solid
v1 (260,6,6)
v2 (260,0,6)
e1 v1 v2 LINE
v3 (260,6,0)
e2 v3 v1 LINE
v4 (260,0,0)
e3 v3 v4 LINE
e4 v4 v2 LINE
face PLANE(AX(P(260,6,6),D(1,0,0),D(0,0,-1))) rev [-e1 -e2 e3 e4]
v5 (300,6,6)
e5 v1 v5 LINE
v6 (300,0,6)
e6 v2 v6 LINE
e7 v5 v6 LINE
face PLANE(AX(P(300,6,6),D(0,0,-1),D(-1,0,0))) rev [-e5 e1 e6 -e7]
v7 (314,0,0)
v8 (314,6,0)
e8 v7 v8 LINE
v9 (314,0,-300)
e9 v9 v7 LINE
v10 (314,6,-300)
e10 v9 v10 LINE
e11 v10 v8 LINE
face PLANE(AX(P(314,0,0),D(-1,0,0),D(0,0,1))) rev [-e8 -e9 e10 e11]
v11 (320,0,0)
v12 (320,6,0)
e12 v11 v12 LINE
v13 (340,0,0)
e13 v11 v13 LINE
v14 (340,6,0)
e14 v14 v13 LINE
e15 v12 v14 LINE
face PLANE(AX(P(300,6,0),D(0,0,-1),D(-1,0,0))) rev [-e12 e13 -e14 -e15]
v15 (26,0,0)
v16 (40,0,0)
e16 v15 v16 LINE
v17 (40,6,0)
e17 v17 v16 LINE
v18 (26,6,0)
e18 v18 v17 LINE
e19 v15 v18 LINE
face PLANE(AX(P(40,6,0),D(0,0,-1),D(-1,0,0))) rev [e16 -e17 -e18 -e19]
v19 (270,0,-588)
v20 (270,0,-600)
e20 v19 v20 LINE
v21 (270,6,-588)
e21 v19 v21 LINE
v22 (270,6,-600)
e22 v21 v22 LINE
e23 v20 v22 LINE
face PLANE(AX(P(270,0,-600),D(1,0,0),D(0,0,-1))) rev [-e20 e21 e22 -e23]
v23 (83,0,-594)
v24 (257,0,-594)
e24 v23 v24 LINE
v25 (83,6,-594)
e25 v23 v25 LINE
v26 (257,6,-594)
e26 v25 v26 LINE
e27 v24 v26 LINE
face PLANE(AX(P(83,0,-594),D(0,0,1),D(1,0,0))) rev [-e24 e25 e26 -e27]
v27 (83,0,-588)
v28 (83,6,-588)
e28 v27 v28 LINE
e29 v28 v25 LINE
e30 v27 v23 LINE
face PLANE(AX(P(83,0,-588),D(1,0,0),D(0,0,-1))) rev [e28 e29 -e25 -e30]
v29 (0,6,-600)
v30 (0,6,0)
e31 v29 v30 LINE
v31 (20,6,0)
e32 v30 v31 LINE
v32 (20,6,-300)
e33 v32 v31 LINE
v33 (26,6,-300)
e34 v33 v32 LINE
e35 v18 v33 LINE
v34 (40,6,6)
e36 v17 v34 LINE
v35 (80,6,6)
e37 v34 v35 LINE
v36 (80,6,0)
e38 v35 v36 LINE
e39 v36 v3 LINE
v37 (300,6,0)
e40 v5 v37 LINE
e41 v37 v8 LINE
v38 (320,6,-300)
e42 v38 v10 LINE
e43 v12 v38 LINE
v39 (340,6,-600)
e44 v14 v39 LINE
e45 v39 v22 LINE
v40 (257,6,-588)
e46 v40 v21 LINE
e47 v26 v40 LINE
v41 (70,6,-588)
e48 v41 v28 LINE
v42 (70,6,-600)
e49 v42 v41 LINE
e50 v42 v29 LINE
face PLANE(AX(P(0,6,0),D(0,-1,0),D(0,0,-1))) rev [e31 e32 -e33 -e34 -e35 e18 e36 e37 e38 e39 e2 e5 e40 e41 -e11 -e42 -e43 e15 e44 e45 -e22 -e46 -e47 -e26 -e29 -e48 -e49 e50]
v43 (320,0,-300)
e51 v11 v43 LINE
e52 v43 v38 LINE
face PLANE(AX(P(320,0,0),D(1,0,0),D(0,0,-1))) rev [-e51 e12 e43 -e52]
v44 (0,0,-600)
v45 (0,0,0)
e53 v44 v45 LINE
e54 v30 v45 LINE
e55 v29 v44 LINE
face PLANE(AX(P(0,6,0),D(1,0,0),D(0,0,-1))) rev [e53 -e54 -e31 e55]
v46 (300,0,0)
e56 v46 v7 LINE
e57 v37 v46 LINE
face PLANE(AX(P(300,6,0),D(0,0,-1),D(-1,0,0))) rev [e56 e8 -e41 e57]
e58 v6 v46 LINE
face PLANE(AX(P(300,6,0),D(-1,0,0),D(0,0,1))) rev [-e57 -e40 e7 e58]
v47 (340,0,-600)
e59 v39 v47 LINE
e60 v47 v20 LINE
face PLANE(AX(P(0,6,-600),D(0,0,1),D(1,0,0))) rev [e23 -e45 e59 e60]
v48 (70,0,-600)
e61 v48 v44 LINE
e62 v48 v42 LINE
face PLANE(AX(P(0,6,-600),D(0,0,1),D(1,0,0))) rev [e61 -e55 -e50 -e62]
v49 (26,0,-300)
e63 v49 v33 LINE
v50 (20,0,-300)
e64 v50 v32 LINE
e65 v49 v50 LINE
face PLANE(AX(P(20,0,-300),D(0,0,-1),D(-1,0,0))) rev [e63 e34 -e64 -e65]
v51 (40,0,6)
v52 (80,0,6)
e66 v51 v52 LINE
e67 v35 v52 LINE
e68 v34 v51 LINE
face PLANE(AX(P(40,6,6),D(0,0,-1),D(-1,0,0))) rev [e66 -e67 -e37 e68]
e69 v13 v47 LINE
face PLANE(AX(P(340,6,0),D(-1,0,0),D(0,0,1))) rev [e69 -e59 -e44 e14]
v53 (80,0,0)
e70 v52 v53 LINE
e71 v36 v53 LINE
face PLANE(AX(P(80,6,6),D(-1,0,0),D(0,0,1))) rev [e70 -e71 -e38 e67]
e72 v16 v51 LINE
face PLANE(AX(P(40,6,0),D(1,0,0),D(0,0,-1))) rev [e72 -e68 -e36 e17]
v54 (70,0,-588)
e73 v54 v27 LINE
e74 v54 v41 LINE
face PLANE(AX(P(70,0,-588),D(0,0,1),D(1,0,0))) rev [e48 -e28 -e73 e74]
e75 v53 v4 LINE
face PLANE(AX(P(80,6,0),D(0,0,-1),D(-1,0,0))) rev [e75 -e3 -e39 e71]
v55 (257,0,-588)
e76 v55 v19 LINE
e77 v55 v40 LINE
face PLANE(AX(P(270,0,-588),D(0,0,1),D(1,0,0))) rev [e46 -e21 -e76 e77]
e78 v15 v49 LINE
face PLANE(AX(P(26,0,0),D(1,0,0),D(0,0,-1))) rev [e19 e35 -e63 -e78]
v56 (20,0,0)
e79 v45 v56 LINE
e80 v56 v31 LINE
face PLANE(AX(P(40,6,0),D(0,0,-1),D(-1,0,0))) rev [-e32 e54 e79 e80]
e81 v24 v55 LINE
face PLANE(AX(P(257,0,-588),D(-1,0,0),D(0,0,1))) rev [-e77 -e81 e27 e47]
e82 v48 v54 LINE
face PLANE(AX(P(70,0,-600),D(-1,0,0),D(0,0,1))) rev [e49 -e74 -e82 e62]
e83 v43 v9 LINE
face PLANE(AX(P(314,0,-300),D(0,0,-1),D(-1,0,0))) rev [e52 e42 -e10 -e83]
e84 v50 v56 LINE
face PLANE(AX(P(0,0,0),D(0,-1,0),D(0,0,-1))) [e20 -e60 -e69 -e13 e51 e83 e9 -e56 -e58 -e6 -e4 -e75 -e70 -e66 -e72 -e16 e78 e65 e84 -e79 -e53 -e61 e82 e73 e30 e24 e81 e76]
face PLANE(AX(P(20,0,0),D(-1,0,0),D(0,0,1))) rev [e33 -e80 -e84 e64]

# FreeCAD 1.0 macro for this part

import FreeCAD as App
import Part
import Sketcher
Q = App.Units.Quantity

doc = App.newDocument("Part")
body = doc.addObject("PartDesign::Body", "Body")

sketch1 = body.newObject("Sketcher::SketchObject", "Sketch")
sketch1.AttachmentSupport = (doc.getObject("XZ_Plane"), [""])
sketch1.MapMode = "FlatFace"
sketch1.addGeometry(Part.LineSegment(App.Vector(300, 6, 0), App.Vector(300, 0, 0)), False)
sketch1.addGeometry(Part.LineSegment(App.Vector(300, 0, 0), App.Vector(340, 0, 0)), False)
sketch1.addGeometry(Part.LineSegment(App.Vector(340, 0, 0), App.Vector(340, -600, 0)), False)
sketch1.addGeometry(Part.LineSegment(App.Vector(340, -600, 0), App.Vector(0, -600, 0)), False)
sketch1.addGeometry(Part.LineSegment(App.Vector(0, -600, 0), App.Vector(0, 0, 0)), False)
sketch1.addGeometry(Part.LineSegment(App.Vector(0, 0, 0), App.Vector(40, 0, 0)), False)
sketch1.addGeometry(Part.LineSegment(App.Vector(40, 0, 0), App.Vector(40, 6, 0)), False)
sketch1.addGeometry(Part.LineSegment(App.Vector(40, 6, 0), App.Vector(80, 6, 0)), False)
sketch1.addGeometry(Part.LineSegment(App.Vector(80, 6, 0), App.Vector(80, 0, 0)), False)
sketch1.addGeometry(Part.LineSegment(App.Vector(80, 0, 0), App.Vector(260, 0, 0)), False)
sketch1.addGeometry(Part.LineSegment(App.Vector(260, 0, 0), App.Vector(260, 6, 0)), False)
sketch1.addGeometry(Part.LineSegment(App.Vector(260, 6, 0), App.Vector(300, 6, 0)), False)
sketch1.addConstraint(Sketcher.Constraint("Coincident", 0, 2, 1, 1))
sketch1.addConstraint(Sketcher.Constraint("Coincident", 1, 2, 2, 1))
sketch1.addConstraint(Sketcher.Constraint("Coincident", 2, 2, 3, 1))
sketch1.addConstraint(Sketcher.Constraint("Coincident", 3, 2, 4, 1))
sketch1.addConstraint(Sketcher.Constraint("Coincident", 4, 2, 5, 1))
sketch1.addConstraint(Sketcher.Constraint("Coincident", 5, 2, 6, 1))
sketch1.addConstraint(Sketcher.Constraint("Coincident", 6, 2, 7, 1))
sketch1.addConstraint(Sketcher.Constraint("Coincident", 7, 2, 8, 1))
sketch1.addConstraint(Sketcher.Constraint("Coincident", 8, 2, 9, 1))
sketch1.addConstraint(Sketcher.Constraint("Coincident", 9, 2, 10, 1))
sketch1.addConstraint(Sketcher.Constraint("Coincident", 10, 2, 11, 1))
sketch1.addConstraint(Sketcher.Constraint("Coincident", 11, 2, 0, 1))
sketch1.addConstraint(Sketcher.Constraint("Vertical", 0))
sketch1.addConstraint(Sketcher.Constraint("Horizontal", 1))
sketch1.addConstraint(Sketcher.Constraint("Vertical", 2))
sketch1.addConstraint(Sketcher.Constraint("Horizontal", 3))
sketch1.addConstraint(Sketcher.Constraint("Vertical", 4))
sketch1.addConstraint(Sketcher.Constraint("Horizontal", 5))
sketch1.addConstraint(Sketcher.Constraint("Vertical", 6))
sketch1.addConstraint(Sketcher.Constraint("Horizontal", 7))
sketch1.addConstraint(Sketcher.Constraint("Vertical", 8))
sketch1.addConstraint(Sketcher.Constraint("Horizontal", 9))
sketch1.addConstraint(Sketcher.Constraint("Vertical", 10))
sketch1.addConstraint(Sketcher.Constraint("Horizontal", 11))
sketch1.addConstraint(Sketcher.Constraint("Coincident", 4, 2, -1, 1))
sketch1.addConstraint(Sketcher.Constraint("PointOnObject", 0, 2, -1))
sketch1.addConstraint(Sketcher.Constraint("PointOnObject", 8, 2, -1))
sketch1.addConstraint(Sketcher.Constraint("Horizontal", 7, 2, 10, 2))
sketch1.addConstraint(Sketcher.Constraint("Equal", 1, 5))
sketch1.addConstraint(Sketcher.Constraint("Equal", 5, 7))
sketch1.addConstraint(Sketcher.Constraint("Equal", 7, 11))
sketch1.addConstraint(Sketcher.Constraint("DistanceX", 1, 1, 1, 2, Q("40 mm")))
sketch1.addConstraint(Sketcher.Constraint("DistanceX", 3, 2, 3, 1, Q("340 mm")))
sketch1.addConstraint(Sketcher.Constraint("DistanceY", 0, 2, 0, 1, Q("6 mm")))
sketch1.addConstraint(Sketcher.Constraint("DistanceY", 2, 2, 2, 1, Q("600 mm")))
pad1 = body.newObject("PartDesign::Pad", "Pad")
pad1.Profile = sketch1
pad1.Length = 6
pad1.Reversed = True

sketch2 = body.newObject("Sketcher::SketchObject", "Sketch001")
sketch2.AttachmentSupport = (doc.getObject("XZ_Plane"), [""])
sketch2.MapMode = "FlatFace"
sketch2.AttachmentOffset = App.Placement(App.Vector(0, 0, -6), App.Rotation())
sketch2.addGeometry(Part.LineSegment(App.Vector(20, -300, 0), App.Vector(20, 0, 0)), False)
sketch2.addGeometry(Part.LineSegment(App.Vector(20, 0, 0), App.Vector(26, 0, 0)), False)
sketch2.addGeometry(Part.LineSegment(App.Vector(26, 0, 0), App.Vector(26, -300, 0)), False)
sketch2.addGeometry(Part.LineSegment(App.Vector(26, -300, 0), App.Vector(20, -300, 0)), False)
sketch2.addConstraint(Sketcher.Constraint("Coincident", 0, 2, 1, 1))
sketch2.addConstraint(Sketcher.Constraint("Coincident", 1, 2, 2, 1))
sketch2.addConstraint(Sketcher.Constraint("Coincident", 2, 2, 3, 1))
sketch2.addConstraint(Sketcher.Constraint("Coincident", 3, 2, 0, 1))
sketch2.addConstraint(Sketcher.Constraint("Vertical", 0))
sketch2.addConstraint(Sketcher.Constraint("Horizontal", 1))
sketch2.addConstraint(Sketcher.Constraint("Vertical", 2))
sketch2.addConstraint(Sketcher.Constraint("Horizontal", 3))
sketch2.addConstraint(Sketcher.Constraint("PointOnObject", 0, 2, -1))
sketch2.addConstraint(Sketcher.Constraint("DistanceX", 1, 1, 1, 2, Q("6 mm")))
sketch2.addConstraint(Sketcher.Constraint("DistanceY", 0, 1, 0, 2, Q("300 mm")))
sketch2.addConstraint(Sketcher.Constraint("DistanceX", -1, 1, 0, 2, Q("20 mm")))
pocket1 = body.newObject("PartDesign::Pocket", "Pocket")
pocket1.Profile = sketch2
pocket1.Length = 6
pocket1.Reversed = True
doc.recompute()

linearpattern = body.newObject("PartDesign::LinearPattern", "LinearPattern")
linearpattern.Originals = [pocket1]
linearpattern.Direction = (doc.getObject("X_Axis"), [""])
linearpattern.Mode = "offset"
linearpattern.Offset = 294
linearpattern.Occurrences = 2
body.Tip = linearpattern

sketch3 = body.newObject("Sketcher::SketchObject", "Sketch002")
sketch3.AttachmentSupport = (doc.getObject("XZ_Plane"), [""])
sketch3.MapMode = "FlatFace"
sketch3.AttachmentOffset = App.Placement(App.Vector(0, 0, -6), App.Rotation())
sketch3.addGeometry(Part.LineSegment(App.Vector(270, -600, 0), App.Vector(70, -600, 0)), False)
sketch3.addGeometry(Part.LineSegment(App.Vector(70, -600, 0), App.Vector(70, -588, 0)), False)
sketch3.addGeometry(Part.LineSegment(App.Vector(70, -588, 0), App.Vector(83, -588, 0)), False)
sketch3.addGeometry(Part.LineSegment(App.Vector(83, -588, 0), App.Vector(83, -594, 0)), False)
sketch3.addGeometry(Part.LineSegment(App.Vector(83, -594, 0), App.Vector(257, -594, 0)), False)
sketch3.addGeometry(Part.LineSegment(App.Vector(257, -594, 0), App.Vector(257, -588, 0)), False)
sketch3.addGeometry(Part.LineSegment(App.Vector(257, -588, 0), App.Vector(270, -588, 0)), False)
sketch3.addGeometry(Part.LineSegment(App.Vector(270, -588, 0), App.Vector(270, -600, 0)), False)
sketch3.addConstraint(Sketcher.Constraint("Coincident", 0, 2, 1, 1))
sketch3.addConstraint(Sketcher.Constraint("Coincident", 1, 2, 2, 1))
sketch3.addConstraint(Sketcher.Constraint("Coincident", 2, 2, 3, 1))
sketch3.addConstraint(Sketcher.Constraint("Coincident", 3, 2, 4, 1))
sketch3.addConstraint(Sketcher.Constraint("Coincident", 4, 2, 5, 1))
sketch3.addConstraint(Sketcher.Constraint("Coincident", 5, 2, 6, 1))
sketch3.addConstraint(Sketcher.Constraint("Coincident", 6, 2, 7, 1))
sketch3.addConstraint(Sketcher.Constraint("Coincident", 7, 2, 0, 1))
sketch3.addConstraint(Sketcher.Constraint("Horizontal", 0))
sketch3.addConstraint(Sketcher.Constraint("Vertical", 1))
sketch3.addConstraint(Sketcher.Constraint("Horizontal", 2))
sketch3.addConstraint(Sketcher.Constraint("Vertical", 3))
sketch3.addConstraint(Sketcher.Constraint("Horizontal", 4))
sketch3.addConstraint(Sketcher.Constraint("Vertical", 5))
sketch3.addConstraint(Sketcher.Constraint("Horizontal", 6))
sketch3.addConstraint(Sketcher.Constraint("Vertical", 7))
sketch3.addConstraint(Sketcher.Constraint("Horizontal", 2, 2, 5, 2))
sketch3.addConstraint(Sketcher.Constraint("Equal", 2, 6))
sketch3.addConstraint(Sketcher.Constraint("DistanceX", 0, 2, 0, 1, Q("200 mm")))
sketch3.addConstraint(Sketcher.Constraint("DistanceX", 2, 1, 2, 2, Q("13 mm")))
sketch3.addConstraint(Sketcher.Constraint("DistanceY", 1, 1, 1, 2, Q("12 mm")))
sketch3.addConstraint(Sketcher.Constraint("DistanceY", 3, 2, 3, 1, Q("6 mm")))
sketch3.addConstraint(Sketcher.Constraint("DistanceX", -1, 1, 0, 2, Q("70 mm")))
sketch3.addConstraint(Sketcher.Constraint("DistanceY", 0, 2, -1, 1, Q("600 mm")))
pocket2 = body.newObject("PartDesign::Pocket", "Pocket001")
pocket2.Profile = sketch3
pocket2.Length = 6
pocket2.Reversed = True

doc.recompute()
